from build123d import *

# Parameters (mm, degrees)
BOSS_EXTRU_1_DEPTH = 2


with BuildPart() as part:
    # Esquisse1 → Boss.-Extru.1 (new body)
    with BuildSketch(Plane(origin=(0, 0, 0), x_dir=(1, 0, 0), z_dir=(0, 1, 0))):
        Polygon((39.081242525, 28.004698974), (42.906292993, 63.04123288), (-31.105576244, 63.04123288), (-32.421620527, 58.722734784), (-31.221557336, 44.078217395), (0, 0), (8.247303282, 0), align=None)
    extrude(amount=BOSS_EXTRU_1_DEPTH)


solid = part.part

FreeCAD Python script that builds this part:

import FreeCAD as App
import Part
import Sketcher
from FreeCAD import Vector
Q = App.Units.Quantity


def add_polygon(sketch, points):
    """Adds a closed chain of lines whose ends are joined by coincident constraints."""
    first, n = sketch.GeometryCount, len(points)
    for a, b in zip(points, points[1:] + points[:1]):
        sketch.addGeometry(Part.LineSegment(App.Vector(*a, 0), App.Vector(*b, 0)), False)
    for i in range(n):
        sketch.addConstraint(Sketcher.Constraint("Coincident", first + i, 2, first + (i + 1) % n, 1))

doc = App.newDocument("Part")
body = doc.addObject("PartDesign::Body", "Body")

# Sketch on XZ plane
sketch1 = doc.addObject("Sketcher::SketchObject", "Sketch")
body.addObject(sketch1)
sketch1.AttachmentSupport = (doc.XZ_Plane, [""])
sketch1.MapMode = "FlatFace"
add_polygon(sketch1, [(39.081243, -28.004699), (42.906293, -63.041233), (-31.105576, -63.041233), (-32.421621, -58.722735), (-31.221557, -44.078217), (0, 0), (8.247303, 0)])  # lines 0-6
sketch1.addConstraint(Sketcher.Constraint("Horizontal", 1))
sketch1.addConstraint(Sketcher.Constraint("Horizontal", 5))
sketch1.addConstraint(Sketcher.Constraint("Coincident", 4, 2, -1, 1))
sketch1.addConstraint(Sketcher.Constraint("DistanceX", 1, 2, 1, 1, Q("74.011869 mm")))
sketch1.addConstraint(Sketcher.Constraint("DistanceY", 6, 2, -1, 1, Q("28.004699 mm")))
sketch1.addConstraint(Sketcher.Constraint("DistanceY", 1, 2, 2, 2, Q("4.318498 mm")))
sketch1.addConstraint(Sketcher.Constraint("DistanceX", 3, 2, 6, 2, Q("70.3028 mm")))
sketch1.addConstraint(Sketcher.Constraint("Distance", 0, Q("35.244712 mm")))
sketch1.addConstraint(Sketcher.Constraint("Distance", 6, Q("41.653271 mm")))
sketch1.addConstraint(Sketcher.Constraint("DistanceX", 5, 1, 5, 2, Q("8.247303 mm")))
sketch1.addConstraint(Sketcher.Constraint("DistanceX", 2, 2, -1, 1, Q("32.421621 mm")))
sketch1.addConstraint(Sketcher.Constraint("DistanceX", 3, 2, 1, 2, Q("0.115981 mm")))
sketch1.addConstraint(Sketcher.Constraint("DistanceY", 3, 2, 6, 2, Q("16.073518 mm")))
pad1 = doc.addObject("PartDesign::Pad", "Pad")
body.addObject(pad1)
pad1.Profile = sketch1
pad1.Length = 2
pad1.Reversed = True

doc.recompute()
